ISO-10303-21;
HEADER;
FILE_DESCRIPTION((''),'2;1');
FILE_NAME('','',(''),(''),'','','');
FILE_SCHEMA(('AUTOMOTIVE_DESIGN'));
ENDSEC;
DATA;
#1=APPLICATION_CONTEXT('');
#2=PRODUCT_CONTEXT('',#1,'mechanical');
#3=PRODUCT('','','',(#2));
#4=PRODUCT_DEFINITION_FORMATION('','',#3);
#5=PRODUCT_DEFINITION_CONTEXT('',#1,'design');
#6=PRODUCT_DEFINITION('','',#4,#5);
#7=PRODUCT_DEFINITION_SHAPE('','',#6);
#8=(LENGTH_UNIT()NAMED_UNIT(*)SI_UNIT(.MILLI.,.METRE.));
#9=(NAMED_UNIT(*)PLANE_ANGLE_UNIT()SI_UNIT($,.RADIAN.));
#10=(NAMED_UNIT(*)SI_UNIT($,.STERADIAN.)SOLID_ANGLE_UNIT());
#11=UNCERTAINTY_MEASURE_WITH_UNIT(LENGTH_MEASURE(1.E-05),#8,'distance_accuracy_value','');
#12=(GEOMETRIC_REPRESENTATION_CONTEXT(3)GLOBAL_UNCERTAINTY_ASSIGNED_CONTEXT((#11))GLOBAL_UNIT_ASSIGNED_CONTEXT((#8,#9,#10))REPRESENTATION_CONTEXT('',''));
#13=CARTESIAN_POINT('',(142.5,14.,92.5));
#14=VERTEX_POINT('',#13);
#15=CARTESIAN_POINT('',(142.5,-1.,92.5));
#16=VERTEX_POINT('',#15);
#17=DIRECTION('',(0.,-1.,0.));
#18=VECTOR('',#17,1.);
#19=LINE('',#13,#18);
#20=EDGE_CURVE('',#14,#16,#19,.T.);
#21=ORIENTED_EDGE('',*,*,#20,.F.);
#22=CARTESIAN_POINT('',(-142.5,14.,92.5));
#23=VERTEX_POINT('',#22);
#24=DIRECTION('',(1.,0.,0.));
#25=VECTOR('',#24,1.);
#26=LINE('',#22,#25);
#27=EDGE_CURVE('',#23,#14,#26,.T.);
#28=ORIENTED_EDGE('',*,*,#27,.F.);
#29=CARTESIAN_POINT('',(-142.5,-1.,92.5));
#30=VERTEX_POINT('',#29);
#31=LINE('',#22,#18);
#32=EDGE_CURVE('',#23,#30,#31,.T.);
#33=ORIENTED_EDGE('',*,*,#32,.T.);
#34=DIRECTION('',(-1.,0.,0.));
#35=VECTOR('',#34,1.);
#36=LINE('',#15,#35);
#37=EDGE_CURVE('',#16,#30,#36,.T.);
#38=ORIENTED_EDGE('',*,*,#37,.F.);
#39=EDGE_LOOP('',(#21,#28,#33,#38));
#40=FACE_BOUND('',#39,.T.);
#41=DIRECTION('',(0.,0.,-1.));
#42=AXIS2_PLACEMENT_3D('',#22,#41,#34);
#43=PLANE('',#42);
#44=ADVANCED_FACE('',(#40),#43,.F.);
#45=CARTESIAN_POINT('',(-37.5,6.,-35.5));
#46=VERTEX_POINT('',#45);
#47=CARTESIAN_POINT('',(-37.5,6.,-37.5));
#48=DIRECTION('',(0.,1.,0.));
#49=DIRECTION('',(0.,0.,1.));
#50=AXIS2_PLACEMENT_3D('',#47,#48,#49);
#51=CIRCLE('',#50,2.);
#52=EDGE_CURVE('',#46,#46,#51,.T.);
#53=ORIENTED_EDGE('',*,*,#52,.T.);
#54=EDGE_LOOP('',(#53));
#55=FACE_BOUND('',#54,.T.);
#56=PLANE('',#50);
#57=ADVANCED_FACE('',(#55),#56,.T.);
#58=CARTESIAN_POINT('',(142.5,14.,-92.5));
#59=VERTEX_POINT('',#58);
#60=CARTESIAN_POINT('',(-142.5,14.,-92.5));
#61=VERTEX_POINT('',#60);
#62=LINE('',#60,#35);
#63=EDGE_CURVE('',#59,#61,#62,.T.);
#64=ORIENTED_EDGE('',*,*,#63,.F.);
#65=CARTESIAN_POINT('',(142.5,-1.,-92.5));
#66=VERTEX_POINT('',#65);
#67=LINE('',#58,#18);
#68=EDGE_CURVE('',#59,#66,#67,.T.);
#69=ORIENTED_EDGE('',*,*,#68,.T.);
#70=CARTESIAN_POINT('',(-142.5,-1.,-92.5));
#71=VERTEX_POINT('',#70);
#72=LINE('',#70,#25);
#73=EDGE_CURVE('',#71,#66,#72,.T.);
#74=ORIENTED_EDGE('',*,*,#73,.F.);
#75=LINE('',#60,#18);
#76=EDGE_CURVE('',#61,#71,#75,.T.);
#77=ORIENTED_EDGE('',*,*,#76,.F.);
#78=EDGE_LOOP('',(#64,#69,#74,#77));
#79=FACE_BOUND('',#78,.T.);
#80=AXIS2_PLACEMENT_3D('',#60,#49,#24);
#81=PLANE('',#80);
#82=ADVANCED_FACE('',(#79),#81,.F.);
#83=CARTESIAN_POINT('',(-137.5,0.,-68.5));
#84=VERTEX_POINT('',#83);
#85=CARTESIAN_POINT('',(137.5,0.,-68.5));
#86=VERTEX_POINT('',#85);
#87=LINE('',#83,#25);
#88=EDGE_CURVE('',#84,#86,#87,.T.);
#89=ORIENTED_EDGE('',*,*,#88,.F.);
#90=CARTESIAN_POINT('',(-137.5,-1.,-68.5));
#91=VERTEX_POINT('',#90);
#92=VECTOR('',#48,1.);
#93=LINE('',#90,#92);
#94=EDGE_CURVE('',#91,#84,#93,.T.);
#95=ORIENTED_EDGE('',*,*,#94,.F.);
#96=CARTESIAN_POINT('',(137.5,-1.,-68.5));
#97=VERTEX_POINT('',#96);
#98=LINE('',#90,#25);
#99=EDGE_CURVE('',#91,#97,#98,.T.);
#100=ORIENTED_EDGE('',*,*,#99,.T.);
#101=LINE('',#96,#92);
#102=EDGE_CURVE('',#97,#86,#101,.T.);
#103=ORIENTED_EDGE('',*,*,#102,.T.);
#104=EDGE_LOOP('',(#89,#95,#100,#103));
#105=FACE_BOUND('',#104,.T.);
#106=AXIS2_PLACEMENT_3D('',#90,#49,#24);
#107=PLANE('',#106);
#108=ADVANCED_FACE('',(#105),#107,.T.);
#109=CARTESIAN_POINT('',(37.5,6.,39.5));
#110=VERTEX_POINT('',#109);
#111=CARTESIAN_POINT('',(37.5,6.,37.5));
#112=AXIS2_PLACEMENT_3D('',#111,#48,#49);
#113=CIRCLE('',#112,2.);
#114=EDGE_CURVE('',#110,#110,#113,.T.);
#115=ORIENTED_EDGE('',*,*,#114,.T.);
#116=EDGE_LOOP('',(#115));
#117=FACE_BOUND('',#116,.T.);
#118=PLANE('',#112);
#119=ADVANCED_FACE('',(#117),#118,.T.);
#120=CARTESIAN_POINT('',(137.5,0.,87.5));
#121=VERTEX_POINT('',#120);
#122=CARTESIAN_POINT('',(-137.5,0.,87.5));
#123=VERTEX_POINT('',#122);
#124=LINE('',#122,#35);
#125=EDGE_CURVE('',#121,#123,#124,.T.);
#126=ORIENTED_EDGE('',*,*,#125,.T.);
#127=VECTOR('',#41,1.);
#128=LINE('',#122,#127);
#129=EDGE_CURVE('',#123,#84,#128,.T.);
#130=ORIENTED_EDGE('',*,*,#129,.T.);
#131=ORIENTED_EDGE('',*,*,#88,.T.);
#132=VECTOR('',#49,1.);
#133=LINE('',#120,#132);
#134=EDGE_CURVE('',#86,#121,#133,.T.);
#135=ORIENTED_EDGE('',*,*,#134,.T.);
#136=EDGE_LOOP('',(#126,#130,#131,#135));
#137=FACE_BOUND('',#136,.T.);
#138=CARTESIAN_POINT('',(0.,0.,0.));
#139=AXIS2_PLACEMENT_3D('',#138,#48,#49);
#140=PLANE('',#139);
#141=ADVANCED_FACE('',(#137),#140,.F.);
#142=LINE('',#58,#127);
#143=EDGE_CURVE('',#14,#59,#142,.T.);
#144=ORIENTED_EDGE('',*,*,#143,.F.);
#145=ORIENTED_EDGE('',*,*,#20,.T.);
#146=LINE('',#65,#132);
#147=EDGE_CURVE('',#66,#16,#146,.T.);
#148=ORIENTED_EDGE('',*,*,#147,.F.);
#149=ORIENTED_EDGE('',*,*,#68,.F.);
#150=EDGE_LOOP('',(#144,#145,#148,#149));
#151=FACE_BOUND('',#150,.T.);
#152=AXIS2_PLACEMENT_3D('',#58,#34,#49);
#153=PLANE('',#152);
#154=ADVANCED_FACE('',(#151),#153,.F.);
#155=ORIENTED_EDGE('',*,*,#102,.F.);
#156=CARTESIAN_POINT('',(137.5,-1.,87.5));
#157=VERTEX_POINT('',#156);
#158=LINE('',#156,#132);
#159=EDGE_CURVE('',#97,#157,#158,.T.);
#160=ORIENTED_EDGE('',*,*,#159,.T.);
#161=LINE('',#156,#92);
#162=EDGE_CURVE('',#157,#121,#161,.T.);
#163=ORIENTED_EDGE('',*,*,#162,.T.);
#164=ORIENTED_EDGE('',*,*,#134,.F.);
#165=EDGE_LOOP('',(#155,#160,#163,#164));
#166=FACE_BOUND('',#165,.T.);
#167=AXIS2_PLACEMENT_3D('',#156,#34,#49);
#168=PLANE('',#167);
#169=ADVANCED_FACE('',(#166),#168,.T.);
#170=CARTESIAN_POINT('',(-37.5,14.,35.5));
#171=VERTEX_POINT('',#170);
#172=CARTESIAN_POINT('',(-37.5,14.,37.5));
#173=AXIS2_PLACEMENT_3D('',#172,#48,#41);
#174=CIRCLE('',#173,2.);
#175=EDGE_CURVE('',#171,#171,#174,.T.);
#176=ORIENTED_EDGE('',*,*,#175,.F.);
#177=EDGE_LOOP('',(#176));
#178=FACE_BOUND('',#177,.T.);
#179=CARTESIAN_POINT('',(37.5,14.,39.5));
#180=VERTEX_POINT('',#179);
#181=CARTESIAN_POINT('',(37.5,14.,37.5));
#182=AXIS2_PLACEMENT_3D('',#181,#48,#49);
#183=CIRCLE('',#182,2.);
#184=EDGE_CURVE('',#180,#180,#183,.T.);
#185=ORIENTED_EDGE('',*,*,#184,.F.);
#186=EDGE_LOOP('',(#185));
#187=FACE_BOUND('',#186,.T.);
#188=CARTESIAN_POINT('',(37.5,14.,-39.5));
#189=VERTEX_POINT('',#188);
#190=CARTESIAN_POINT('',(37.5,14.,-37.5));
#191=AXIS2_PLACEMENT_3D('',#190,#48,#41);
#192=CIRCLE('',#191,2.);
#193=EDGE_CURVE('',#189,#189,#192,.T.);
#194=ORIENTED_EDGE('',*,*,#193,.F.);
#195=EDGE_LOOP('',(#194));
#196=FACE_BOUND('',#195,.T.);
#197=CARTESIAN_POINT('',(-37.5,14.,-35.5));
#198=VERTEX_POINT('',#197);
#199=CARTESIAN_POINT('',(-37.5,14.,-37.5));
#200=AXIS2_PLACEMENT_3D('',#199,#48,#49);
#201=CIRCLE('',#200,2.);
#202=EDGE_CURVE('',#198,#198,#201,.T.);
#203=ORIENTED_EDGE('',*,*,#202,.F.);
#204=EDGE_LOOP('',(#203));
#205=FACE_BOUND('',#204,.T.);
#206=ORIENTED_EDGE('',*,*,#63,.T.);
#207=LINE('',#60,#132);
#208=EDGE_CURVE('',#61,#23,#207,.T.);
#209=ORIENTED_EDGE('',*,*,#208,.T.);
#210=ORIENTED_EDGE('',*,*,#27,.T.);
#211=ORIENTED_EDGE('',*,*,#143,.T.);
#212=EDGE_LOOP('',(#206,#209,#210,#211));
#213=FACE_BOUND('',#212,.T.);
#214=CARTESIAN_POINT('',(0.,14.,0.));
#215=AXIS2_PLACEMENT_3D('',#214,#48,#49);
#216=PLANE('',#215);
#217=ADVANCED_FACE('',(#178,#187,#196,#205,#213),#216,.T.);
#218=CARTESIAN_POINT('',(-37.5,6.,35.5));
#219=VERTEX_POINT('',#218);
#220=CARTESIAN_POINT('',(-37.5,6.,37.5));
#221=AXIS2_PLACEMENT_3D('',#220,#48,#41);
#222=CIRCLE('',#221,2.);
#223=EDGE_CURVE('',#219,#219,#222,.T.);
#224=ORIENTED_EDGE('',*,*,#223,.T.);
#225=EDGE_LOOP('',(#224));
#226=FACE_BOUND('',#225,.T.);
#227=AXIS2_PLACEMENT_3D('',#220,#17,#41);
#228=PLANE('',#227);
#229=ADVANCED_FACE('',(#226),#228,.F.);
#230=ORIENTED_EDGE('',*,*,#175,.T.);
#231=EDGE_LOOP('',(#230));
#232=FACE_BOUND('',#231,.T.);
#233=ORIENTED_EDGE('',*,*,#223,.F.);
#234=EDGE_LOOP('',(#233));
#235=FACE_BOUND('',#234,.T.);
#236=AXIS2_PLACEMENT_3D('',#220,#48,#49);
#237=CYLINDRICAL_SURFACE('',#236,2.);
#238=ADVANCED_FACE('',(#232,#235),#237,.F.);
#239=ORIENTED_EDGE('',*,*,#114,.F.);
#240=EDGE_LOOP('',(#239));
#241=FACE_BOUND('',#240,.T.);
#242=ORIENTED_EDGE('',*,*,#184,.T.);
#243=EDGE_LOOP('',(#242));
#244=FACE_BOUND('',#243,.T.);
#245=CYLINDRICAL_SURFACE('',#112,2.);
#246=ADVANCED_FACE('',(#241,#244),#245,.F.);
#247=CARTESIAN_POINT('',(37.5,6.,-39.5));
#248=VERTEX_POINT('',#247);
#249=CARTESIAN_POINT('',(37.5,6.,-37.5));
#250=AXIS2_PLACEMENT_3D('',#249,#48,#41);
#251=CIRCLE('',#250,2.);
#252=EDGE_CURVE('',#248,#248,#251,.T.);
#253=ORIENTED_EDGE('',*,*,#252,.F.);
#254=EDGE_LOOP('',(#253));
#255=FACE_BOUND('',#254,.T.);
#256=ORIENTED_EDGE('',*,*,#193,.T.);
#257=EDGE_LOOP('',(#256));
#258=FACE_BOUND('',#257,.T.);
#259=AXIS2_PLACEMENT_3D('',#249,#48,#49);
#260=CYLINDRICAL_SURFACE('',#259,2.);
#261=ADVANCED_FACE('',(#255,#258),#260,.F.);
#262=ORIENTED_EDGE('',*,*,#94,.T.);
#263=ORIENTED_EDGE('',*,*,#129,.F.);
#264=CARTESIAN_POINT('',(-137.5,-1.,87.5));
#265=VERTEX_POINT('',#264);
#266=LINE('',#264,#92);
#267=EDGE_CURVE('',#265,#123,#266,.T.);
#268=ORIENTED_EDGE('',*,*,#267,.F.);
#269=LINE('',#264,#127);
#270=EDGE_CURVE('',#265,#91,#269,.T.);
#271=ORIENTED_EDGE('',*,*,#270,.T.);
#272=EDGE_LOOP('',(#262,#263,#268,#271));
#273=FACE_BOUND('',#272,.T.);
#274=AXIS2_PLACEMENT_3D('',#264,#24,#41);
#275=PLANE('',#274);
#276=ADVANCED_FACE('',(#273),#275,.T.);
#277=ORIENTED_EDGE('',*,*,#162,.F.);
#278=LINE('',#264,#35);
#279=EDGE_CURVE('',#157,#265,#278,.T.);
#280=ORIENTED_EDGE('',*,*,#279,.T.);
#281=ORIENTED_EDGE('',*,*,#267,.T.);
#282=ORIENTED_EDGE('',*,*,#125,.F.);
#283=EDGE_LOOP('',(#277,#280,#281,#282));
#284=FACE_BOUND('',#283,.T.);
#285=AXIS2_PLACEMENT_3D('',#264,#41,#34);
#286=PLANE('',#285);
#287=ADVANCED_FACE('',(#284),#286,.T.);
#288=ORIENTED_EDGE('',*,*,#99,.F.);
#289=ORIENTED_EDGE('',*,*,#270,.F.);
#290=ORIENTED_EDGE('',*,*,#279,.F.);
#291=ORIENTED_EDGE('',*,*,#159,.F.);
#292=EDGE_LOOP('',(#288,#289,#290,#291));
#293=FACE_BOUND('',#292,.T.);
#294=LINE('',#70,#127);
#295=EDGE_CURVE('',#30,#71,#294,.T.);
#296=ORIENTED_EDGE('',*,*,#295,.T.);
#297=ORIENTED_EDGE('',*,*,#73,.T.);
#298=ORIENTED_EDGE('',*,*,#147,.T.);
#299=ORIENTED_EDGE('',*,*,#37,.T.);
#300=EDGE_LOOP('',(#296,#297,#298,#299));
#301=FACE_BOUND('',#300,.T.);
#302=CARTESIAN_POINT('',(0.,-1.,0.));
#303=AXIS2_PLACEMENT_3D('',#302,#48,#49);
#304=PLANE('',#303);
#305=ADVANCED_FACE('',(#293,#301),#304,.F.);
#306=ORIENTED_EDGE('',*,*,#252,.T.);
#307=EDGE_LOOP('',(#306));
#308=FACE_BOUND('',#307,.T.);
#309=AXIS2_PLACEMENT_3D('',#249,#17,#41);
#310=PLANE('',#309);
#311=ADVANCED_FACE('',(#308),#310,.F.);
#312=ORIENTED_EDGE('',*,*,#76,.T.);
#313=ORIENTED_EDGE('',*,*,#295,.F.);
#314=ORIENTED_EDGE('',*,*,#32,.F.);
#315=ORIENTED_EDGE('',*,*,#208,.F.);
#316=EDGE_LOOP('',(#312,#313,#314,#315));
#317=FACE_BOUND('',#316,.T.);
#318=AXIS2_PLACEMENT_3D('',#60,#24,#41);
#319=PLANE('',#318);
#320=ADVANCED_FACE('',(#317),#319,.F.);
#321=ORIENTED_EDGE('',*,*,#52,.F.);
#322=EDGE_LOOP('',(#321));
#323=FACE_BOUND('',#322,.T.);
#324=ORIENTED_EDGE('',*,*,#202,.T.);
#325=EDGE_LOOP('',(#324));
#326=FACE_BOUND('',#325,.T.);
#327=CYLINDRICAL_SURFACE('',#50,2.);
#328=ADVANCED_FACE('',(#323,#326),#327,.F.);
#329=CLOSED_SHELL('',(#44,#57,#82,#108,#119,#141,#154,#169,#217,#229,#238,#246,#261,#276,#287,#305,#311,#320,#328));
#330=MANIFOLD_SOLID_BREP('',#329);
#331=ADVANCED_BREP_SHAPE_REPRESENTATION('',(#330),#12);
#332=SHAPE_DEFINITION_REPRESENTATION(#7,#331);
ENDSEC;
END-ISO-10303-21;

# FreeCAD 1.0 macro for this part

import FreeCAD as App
import Part
import Sketcher


def add_polygon(sketch, points):
    """Adds a closed chain of lines whose ends are joined by coincident constraints."""
    first, n = sketch.GeometryCount, len(points)
    for a, b in zip(points, points[1:] + points[:1]):
        sketch.addGeometry(Part.LineSegment(App.Vector(*a, 0), App.Vector(*b, 0)), False)
    for i in range(n):
        sketch.addConstraint(Sketcher.Constraint("Coincident", first + i, 2, first + (i + 1) % n, 1))

doc = App.newDocument("Part")
body = doc.addObject("PartDesign::Body", "Body")

sketch1 = body.newObject("Sketcher::SketchObject", "Sketch")
sketch1.AttachmentSupport = (doc.getObject("XZ_Plane"), [""])
sketch1.MapMode = "FlatFace"
add_polygon(sketch1, [(-142, -92), (-142, 92), (142, 92), (142, -92)])
sketch1.addConstraint([
    Sketcher.Constraint("Vertical", 0),
    Sketcher.Constraint("Horizontal", 1),
    Sketcher.Constraint("Vertical", 2),
    Sketcher.Constraint("Horizontal", 3),
    Sketcher.Constraint("Symmetric", 0, 2, 2, 2, -1, 1),
    Sketcher.Constraint("DistanceX", 1, 1, 1, 2, 285.0),
    Sketcher.Constraint("DistanceY", 0, 1, 0, 2, 185.0),
])
pad1 = body.newObject("PartDesign::Pad", "Pad")
pad1.Profile = sketch1
pad1.Length = 14
pad1.Reversed = True

sketch2 = body.newObject("Sketcher::SketchObject", "Sketch001")
sketch2.AttachmentSupport = (doc.getObject("XZ_Plane"), [""])
sketch2.MapMode = "FlatFace"
sketch2.AttachmentOffset = App.Placement(App.Vector(0, 0, -14), App.Rotation())
sketch2.addGeometry([
    Part.Circle(App.Vector(-37.5, -37.5, 0), App.Vector(0, 0, 1), 2),
    Part.Circle(App.Vector(37.5, -37.5, 0), App.Vector(0, 0, 1), 2),
    Part.Circle(App.Vector(37.5, 37.5, 0), App.Vector(0, 0, 1), 2),
    Part.Circle(App.Vector(-37.5, 37.5, 0), App.Vector(0, 0, 1), 2),
], False)
sketch2.addConstraint([
    Sketcher.Constraint("Equal", 0, 1),
    Sketcher.Constraint("Equal", 1, 2),
    Sketcher.Constraint("Equal", 2, 3),
    Sketcher.Constraint("Symmetric", 0, 3, 2, 3, -1, 1),
    Sketcher.Constraint("Symmetric", 1, 3, 3, 3, -1, 1),
    Sketcher.Constraint("Symmetric", 0, 3, 1, 3, -2),
    Sketcher.Constraint("Diameter", 0, 4.0),
    Sketcher.Constraint("DistanceX", 0, 3, 1, 3, 75.0),
    Sketcher.Constraint("DistanceY", 1, 3, 2, 3, 75.0),
])
pocket1 = body.newObject("PartDesign::Pocket", "Pocket")
pocket1.Profile = sketch2
pocket1.Length = 8
pocket1.Reversed = True

sketch3 = body.newObject("Sketcher::SketchObject", "Sketch002")
sketch3.AttachmentSupport = (doc.getObject("XZ_Plane"), [""])
sketch3.MapMode = "FlatFace"
add_polygon(sketch3, [(-142, -92), (142, -92), (142, 92), (-142, 92)])
add_polygon(sketch3, [(138, -68), (-138, -68), (-138, 88), (138, 88)])
sketch3.addConstraint([
    Sketcher.Constraint("Horizontal", 0),
    Sketcher.Constraint("Vertical", 1),
    Sketcher.Constraint("Horizontal", 2),
    Sketcher.Constraint("Vertical", 3),
    Sketcher.Constraint("Horizontal", 4),
    Sketcher.Constraint("Vertical", 5),
    Sketcher.Constraint("Horizontal", 6),
    Sketcher.Constraint("Vertical", 7),
    Sketcher.Constraint("Symmetric", 0, 2, 2, 2, -1, 1),
    Sketcher.Constraint("DistanceX", 0, 1, 0, 2, 285.0),
    Sketcher.Constraint("DistanceX", 4, 2, 4, 1, 275.0),
    Sketcher.Constraint("DistanceY", 1, 1, 1, 2, 185.0),
    Sketcher.Constraint("DistanceY", 5, 1, 5, 2, 156.0),
    Sketcher.Constraint("DistanceX", 3, 2, 4, 2, 5.0),
    Sketcher.Constraint("DistanceY", 3, 2, 4, 2, 24.0),
])
pad2 = body.newObject("PartDesign::Pad", "Pad001")
pad2.Profile = sketch3
pad2.Length = 1

doc.recompute()
